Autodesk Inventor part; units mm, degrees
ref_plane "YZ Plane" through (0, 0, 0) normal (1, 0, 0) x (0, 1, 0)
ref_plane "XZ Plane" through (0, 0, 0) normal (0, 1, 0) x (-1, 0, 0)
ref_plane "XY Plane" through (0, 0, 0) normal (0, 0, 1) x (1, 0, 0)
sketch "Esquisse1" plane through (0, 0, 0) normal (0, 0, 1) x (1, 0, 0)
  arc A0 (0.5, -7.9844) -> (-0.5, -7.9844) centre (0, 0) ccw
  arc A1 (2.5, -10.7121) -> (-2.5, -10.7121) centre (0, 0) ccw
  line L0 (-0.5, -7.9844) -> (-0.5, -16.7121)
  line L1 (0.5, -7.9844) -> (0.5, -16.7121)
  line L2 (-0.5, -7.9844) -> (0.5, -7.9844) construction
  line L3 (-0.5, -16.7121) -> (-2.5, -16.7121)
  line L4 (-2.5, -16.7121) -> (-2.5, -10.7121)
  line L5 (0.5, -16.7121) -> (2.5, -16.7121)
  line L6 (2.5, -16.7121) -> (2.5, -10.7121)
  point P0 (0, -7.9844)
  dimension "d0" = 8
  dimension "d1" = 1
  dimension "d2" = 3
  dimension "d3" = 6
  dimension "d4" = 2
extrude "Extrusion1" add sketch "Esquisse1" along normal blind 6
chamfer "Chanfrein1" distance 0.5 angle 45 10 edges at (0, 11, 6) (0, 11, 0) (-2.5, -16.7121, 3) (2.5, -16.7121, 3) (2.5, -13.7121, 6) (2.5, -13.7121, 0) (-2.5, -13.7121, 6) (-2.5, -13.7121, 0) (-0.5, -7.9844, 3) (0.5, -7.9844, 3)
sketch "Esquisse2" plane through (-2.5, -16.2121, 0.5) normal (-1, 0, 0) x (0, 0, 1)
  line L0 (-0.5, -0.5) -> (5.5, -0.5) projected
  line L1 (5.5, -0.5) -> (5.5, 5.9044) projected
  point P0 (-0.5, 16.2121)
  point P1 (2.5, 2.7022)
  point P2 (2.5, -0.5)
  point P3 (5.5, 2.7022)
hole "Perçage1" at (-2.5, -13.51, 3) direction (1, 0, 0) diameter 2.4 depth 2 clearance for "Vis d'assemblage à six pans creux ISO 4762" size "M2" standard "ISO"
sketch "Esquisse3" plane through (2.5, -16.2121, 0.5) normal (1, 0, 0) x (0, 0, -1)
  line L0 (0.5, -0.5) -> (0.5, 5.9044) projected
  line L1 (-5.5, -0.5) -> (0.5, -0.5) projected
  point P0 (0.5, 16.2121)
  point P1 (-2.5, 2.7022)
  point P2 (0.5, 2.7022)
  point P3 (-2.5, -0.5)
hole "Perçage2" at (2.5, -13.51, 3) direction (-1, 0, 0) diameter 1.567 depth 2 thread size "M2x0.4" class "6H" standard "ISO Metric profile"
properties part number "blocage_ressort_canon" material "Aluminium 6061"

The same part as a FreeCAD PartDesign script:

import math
import FreeCAD as App
import Part
import Sketcher
from FreeCAD import Vector


def edges_at(feature, points):
    """Names of the edges that pass closest to the given points."""
    edges = feature.Shape.Edges
    near = lambda p: min(range(len(edges)), key=lambda i: edges[i].distToShape(Part.Vertex(*p))[0])
    return sorted({f"Edge{near(p) + 1}" for p in points})

doc = App.newDocument("Part")
params = doc.addObject("Spreadsheet::Sheet", "Params")
for row, (alias, value) in enumerate([
    ("sketch1_radius", "8 mm"),
    ("sketch1_width", "2 mm"),
    ("sketch1_height", "6 mm"),
    ("sketch1_radius2", "11 mm"),
    ("pad1_length", "6 mm"),
    ("chamfer_size", "0.5 mm"),
    ("sketch2_diameter", "2.4 mm"),
    ("hole_diameter", "2.4 mm"),
    ("hole_depth", "2 mm"),
    ("hole2_diameter", "1.567 mm"),
    ("hole2_depth", "2 mm"),
], start=1):
    params.set(f"A{row}", alias)
    params.set(f"B{row}", "=" + value)
    params.setAlias(f"B{row}", alias)

body = doc.addObject("PartDesign::Body", "Body")

# Sketch on XY plane
sketch1 = body.newObject("Sketcher::SketchObject", "Sketch")
sketch1.AttachmentSupport = (doc.getObject("XY_Plane"), [""])
sketch1.MapMode = "FlatFace"
sketch1.addGeometry([
    Part.ArcOfCircle(Part.Circle(Vector(0, 0, 0), Vector(0, 0, 1), 8), math.radians(-86), math.radians(266)),  # 0
    Part.LineSegment(Vector(0.5, -8, 0), Vector(0.5, -16.7, 0)),  # 1
    Part.LineSegment(Vector(0.5, -16.7, 0), Vector(2.5, -16.7, 0)),  # 2
    Part.LineSegment(Vector(2.5, -16.7, 0), Vector(2.5, -10.7, 0)),  # 3
    Part.ArcOfCircle(Part.Circle(Vector(0, 0, 0), Vector(0, 0, 1), 11), math.radians(-77), math.radians(257)),  # 4
    Part.LineSegment(Vector(-2.5, -10.7, 0), Vector(-2.5, -16.7, 0)),  # 5
    Part.LineSegment(Vector(-2.5, -16.7, 0), Vector(-0.5, -16.7, 0)),  # 6
    Part.LineSegment(Vector(-0.5, -16.7, 0), Vector(-0.5, -8, 0)),  # 7
], False)
sketch1.addConstraint([
    Sketcher.Constraint("Coincident", 0, 1, 1, 1),
    Sketcher.Constraint("Coincident", 1, 2, 2, 1),
    Sketcher.Constraint("Coincident", 2, 2, 3, 1),
    Sketcher.Constraint("Coincident", 3, 2, 4, 1),
    Sketcher.Constraint("Coincident", 4, 2, 5, 1),
    Sketcher.Constraint("Coincident", 5, 2, 6, 1),
    Sketcher.Constraint("Coincident", 6, 2, 7, 1),
    Sketcher.Constraint("Coincident", 7, 2, 0, 2),
    Sketcher.Constraint("Vertical", 1),
    Sketcher.Constraint("Horizontal", 2),
    Sketcher.Constraint("Vertical", 3),
    Sketcher.Constraint("Vertical", 5),
    Sketcher.Constraint("Horizontal", 6),
    Sketcher.Constraint("Vertical", 7),
    Sketcher.Constraint("Coincident", 0, 3, -1, 1),
    Sketcher.Constraint("Coincident", 4, 3, -1, 1),
    Sketcher.Constraint("Symmetric", 2, 2, 5, 2, -2),
    Sketcher.Constraint("Horizontal", 0, 1, 7, 2),
    Sketcher.Constraint("Radius", 0, 8.0),
    Sketcher.Constraint("DistanceX", 2, 1, 2, 2, 2.0),
    Sketcher.Constraint("DistanceY", 3, 1, 3, 2, 6.0),
    Sketcher.Constraint("Radius", 4, 11.0),
    Sketcher.Constraint("DistanceX", 4, 2, 0, 1, 3.0),
])
sketch1.setExpression("Constraints[18]", "Params.sketch1_radius")
sketch1.setExpression("Constraints[19]", "Params.sketch1_width")
sketch1.setExpression("Constraints[20]", "Params.sketch1_height")
sketch1.setExpression("Constraints[21]", "Params.sketch1_radius2")
pad1 = body.newObject("PartDesign::Pad", "Pad")
pad1.Profile = sketch1
pad1.setExpression("Length", "Params.pad1_length")
doc.recompute()

chamfer = body.newObject("PartDesign::Chamfer", "Chamfer")
chamfer.Base = (pad1, edges_at(pad1, [
    (0, 11, 6),
    (0, 11, 0),
    (-2.5, -16.712, 3),
    (2.5, -16.712, 3),
    (2.5, -13.712, 6),
    (2.5, -13.712, 0),
    (-2.5, -13.712, 6),
    (-2.5, -13.712, 0),
    (-0.5, -7.984, 3),
    (0.5, -7.984, 3),
]))
chamfer.setExpression("Size", "Params.chamfer_size")

# Sketch on YZ plane
sketch2 = body.newObject("Sketcher::SketchObject", "Sketch001")
sketch2.AttachmentSupport = (doc.getObject("YZ_Plane"), [""])
sketch2.MapMode = "FlatFace"
sketch2.AttachmentOffset = App.Placement(Vector(0, 0, -2.5), App.Rotation())
sketch2.addGeometry(Part.Circle(Vector(-13.5, 3, 0), Vector(0, 0, 1), 1.2), False)
sketch2.addConstraint([
    Sketcher.Constraint("Diameter", 0, 2.4),
    Sketcher.Constraint("DistanceY", -1, 1, 0, 3, 3.0),
    Sketcher.Constraint("DistanceX", 0, 3, -1, 1, 13.51),
])
sketch2.setExpression("Constraints[0]", "Params.sketch2_diameter")
doc.recompute()
hole = body.newObject("PartDesign::Hole", "Hole")
hole.Profile = sketch2
hole.ThreadType = "None"
hole.setExpression("Diameter", "Params.hole_diameter")
hole.DepthType = "Dimension"
hole.setExpression("Depth", "Params.hole_depth")
hole.DrillPoint = "Flat"
hole.Reversed = True

# Sketch on YZ plane
sketch3 = body.newObject("Sketcher::SketchObject", "Sketch002")
sketch3.AttachmentSupport = (doc.getObject("YZ_Plane"), [""])
sketch3.MapMode = "FlatFace"
sketch3.AttachmentOffset = App.Placement(Vector(0, 0, 2.5), App.Rotation())
sketch3.addGeometry(Part.Circle(Vector(-13.5, 3, 0), Vector(0, 0, 1), 0.8), False)
sketch3.addConstraint([
    Sketcher.Constraint("Diameter", 0, 1.567),
    Sketcher.Constraint("DistanceY", -1, 1, 0, 3, 3.0),
    Sketcher.Constraint("DistanceX", 0, 3, -1, 1, 13.51),
])
doc.recompute()
hole2 = body.newObject("PartDesign::Hole", "Hole001")
hole2.Profile = sketch3
hole2.ThreadType = "None"
hole2.setExpression("Diameter", "Params.hole2_diameter")
hole2.DepthType = "Dimension"
hole2.setExpression("Depth", "Params.hole2_depth")
hole2.DrillPoint = "Flat"

doc.recompute()
